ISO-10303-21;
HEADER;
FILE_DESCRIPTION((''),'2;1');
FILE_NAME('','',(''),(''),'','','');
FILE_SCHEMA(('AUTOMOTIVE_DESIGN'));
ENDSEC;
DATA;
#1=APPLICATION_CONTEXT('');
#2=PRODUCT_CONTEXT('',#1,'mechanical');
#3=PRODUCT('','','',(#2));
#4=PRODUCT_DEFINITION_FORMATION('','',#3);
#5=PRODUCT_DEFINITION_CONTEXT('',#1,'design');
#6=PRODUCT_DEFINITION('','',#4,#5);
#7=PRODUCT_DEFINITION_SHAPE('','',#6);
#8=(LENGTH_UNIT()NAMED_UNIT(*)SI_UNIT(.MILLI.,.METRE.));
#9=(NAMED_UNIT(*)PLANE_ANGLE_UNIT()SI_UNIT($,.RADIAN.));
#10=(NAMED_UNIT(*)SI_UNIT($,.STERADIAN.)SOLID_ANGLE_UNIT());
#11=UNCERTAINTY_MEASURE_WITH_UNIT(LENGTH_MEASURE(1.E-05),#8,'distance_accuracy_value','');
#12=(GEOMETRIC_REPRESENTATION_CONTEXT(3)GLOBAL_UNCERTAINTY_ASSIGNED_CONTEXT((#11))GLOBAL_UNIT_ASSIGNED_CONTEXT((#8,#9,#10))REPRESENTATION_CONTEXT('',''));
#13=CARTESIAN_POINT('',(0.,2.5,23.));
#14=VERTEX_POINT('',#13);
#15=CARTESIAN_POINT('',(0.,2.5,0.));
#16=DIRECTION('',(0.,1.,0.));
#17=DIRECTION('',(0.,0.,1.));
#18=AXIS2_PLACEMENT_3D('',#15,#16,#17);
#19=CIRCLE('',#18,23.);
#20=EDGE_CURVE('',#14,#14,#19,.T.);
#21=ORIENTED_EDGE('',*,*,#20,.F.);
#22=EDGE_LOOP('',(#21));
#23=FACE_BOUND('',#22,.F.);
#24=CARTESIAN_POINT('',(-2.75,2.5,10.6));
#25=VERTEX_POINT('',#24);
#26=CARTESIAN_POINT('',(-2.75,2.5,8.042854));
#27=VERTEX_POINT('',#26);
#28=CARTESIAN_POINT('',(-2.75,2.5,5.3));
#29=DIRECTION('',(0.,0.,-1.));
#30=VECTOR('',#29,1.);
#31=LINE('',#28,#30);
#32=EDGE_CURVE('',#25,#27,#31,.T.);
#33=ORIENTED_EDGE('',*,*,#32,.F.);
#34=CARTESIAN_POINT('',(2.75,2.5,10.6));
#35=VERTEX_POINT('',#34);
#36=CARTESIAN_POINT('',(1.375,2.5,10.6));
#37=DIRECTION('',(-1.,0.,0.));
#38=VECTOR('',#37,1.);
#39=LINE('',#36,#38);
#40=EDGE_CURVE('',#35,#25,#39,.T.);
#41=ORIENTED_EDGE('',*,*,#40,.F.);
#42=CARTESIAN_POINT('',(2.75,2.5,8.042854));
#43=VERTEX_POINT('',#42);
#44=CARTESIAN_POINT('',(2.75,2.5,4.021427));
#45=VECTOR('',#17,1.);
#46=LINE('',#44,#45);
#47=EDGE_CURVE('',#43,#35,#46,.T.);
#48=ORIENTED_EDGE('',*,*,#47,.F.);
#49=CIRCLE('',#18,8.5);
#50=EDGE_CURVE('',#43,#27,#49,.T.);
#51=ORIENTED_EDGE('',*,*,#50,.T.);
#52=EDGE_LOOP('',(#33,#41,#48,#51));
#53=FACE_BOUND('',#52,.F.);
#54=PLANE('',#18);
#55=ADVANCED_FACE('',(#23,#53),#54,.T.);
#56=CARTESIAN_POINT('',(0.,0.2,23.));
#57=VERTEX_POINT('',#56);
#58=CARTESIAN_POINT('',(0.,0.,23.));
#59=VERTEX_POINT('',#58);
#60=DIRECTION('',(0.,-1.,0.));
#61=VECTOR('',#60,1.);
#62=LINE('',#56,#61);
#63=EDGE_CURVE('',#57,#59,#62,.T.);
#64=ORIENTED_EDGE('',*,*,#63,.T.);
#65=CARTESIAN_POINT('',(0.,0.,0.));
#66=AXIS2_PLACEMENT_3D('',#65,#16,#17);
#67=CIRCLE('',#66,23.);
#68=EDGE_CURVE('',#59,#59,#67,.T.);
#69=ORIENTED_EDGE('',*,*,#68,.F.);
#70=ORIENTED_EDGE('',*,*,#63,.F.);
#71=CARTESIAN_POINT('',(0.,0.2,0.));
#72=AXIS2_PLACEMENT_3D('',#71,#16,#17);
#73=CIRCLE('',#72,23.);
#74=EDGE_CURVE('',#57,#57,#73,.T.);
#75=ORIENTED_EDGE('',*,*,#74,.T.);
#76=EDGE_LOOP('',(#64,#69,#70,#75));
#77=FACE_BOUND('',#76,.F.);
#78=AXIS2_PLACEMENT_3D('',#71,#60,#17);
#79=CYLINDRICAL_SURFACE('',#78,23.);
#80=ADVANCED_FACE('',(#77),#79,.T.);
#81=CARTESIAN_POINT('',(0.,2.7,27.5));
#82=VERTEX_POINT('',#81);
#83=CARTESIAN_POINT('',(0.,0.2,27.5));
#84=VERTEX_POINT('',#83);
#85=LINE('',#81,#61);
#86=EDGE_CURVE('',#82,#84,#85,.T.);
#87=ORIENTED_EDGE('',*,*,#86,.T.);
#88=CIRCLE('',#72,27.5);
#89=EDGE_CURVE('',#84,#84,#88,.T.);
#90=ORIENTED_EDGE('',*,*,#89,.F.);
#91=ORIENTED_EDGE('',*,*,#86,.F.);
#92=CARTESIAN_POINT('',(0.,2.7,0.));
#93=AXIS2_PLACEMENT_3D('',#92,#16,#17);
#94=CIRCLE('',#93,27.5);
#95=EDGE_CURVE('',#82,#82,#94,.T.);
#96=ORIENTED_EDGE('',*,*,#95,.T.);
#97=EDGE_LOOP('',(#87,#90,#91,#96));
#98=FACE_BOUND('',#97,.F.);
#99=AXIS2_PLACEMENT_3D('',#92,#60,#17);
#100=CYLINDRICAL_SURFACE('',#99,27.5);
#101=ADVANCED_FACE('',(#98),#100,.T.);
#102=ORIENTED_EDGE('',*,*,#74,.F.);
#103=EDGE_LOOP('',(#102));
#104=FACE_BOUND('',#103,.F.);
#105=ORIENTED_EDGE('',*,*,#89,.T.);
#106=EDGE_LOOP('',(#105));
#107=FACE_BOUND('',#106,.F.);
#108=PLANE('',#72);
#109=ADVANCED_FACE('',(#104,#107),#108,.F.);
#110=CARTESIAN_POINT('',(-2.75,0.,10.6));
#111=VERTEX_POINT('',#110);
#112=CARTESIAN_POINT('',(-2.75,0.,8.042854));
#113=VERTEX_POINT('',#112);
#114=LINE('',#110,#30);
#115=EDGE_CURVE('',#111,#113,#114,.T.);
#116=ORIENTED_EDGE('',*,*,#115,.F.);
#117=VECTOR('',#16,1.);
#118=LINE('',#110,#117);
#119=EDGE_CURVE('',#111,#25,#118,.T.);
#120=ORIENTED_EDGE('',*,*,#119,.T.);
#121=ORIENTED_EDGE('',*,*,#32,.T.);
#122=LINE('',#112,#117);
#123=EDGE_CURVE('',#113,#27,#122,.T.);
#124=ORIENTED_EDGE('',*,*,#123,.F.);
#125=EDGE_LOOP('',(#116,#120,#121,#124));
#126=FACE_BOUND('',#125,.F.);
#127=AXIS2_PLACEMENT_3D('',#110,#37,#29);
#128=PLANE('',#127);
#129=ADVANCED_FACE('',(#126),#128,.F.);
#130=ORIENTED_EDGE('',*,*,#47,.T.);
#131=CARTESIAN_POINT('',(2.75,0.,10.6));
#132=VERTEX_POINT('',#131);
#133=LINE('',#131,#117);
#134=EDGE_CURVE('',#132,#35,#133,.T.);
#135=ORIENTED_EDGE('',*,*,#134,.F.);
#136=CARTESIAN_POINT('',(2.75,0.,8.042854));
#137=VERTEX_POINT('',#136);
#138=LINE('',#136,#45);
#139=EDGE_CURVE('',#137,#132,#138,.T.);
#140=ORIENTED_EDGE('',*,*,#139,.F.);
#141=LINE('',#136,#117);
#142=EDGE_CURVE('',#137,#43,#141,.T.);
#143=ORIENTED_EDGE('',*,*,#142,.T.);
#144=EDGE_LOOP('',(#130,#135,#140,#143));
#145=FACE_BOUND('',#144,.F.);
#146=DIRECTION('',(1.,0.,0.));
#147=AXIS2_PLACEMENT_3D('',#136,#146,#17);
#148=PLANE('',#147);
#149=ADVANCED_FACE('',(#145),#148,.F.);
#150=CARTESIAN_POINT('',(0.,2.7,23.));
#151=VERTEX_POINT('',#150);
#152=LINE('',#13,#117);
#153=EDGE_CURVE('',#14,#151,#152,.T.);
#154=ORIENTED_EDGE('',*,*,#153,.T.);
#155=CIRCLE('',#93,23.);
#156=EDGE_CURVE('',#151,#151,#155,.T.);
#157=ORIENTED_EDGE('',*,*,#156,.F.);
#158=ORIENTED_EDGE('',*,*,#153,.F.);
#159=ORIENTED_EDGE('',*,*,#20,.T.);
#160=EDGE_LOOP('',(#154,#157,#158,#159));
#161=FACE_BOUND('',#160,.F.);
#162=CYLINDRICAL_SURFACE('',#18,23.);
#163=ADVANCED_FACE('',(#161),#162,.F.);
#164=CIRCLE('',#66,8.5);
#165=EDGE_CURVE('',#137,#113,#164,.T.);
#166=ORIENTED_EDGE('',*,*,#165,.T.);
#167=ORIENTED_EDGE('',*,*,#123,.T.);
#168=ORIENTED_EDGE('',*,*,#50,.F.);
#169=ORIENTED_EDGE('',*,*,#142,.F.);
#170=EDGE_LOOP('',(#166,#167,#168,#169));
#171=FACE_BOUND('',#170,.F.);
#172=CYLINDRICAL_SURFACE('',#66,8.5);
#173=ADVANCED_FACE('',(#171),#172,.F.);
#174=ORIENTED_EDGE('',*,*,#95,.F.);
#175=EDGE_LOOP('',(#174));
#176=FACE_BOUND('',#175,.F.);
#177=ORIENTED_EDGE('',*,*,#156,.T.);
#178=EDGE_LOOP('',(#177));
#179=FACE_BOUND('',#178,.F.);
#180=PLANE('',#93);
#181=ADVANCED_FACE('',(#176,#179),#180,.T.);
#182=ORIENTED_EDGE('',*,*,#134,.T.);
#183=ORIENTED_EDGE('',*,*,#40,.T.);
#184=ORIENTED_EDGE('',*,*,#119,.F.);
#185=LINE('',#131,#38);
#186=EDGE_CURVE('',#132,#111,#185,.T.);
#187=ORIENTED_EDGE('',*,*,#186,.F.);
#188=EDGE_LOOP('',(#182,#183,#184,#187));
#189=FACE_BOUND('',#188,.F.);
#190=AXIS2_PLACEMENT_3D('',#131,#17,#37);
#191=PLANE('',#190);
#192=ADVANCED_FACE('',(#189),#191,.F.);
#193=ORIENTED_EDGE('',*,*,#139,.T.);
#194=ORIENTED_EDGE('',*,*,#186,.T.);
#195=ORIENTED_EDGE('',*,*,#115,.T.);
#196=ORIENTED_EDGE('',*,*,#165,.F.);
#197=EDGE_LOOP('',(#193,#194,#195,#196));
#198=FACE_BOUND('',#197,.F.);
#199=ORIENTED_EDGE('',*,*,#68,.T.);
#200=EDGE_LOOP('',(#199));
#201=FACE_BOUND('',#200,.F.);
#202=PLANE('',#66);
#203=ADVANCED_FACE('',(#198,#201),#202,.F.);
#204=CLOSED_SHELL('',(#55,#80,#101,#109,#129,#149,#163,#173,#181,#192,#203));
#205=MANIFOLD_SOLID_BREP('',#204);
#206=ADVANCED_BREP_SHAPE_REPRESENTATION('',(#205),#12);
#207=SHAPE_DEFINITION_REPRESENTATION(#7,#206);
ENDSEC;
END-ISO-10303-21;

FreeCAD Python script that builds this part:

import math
import FreeCAD as App
import Part
import Sketcher
from FreeCAD import Vector
Q = App.Units.Quantity

doc = App.newDocument("Part")
body = doc.addObject("PartDesign::Body", "Body")

# Sketch on YZ plane
sketch1 = body.newObject("Sketcher::SketchObject", "Sketch")
sketch1.AttachmentSupport = (doc.getObject("YZ_Plane"), [""])
sketch1.MapMode = "FlatFace"
sketch1.addGeometry([
    Part.LineSegment(Vector(0, 23, 0), Vector(0, 8.5, 0)),  # 0
    Part.LineSegment(Vector(0, 8.5, 0), Vector(2.5, 8.5, 0)),  # 1
    Part.LineSegment(Vector(2.5, 8.5, 0), Vector(2.5, 23, 0)),  # 2
    Part.LineSegment(Vector(2.5, 23, 0), Vector(2.7, 23, 0)),  # 3
    Part.LineSegment(Vector(2.7, 23, 0), Vector(2.7, 27.5, 0)),  # 4
    Part.LineSegment(Vector(2.7, 27.5, 0), Vector(0.2, 27.5, 0)),  # 5
    Part.LineSegment(Vector(0.2, 27.5, 0), Vector(0.2, 23, 0)),  # 6
    Part.LineSegment(Vector(0.2, 23, 0), Vector(0, 23, 0)),  # 7
], False)
sketch1.addConstraint([
    Sketcher.Constraint("Coincident", 0, 2, 1, 1),
    Sketcher.Constraint("Coincident", 1, 2, 2, 1),
    Sketcher.Constraint("Coincident", 2, 2, 3, 1),
    Sketcher.Constraint("Coincident", 3, 2, 4, 1),
    Sketcher.Constraint("Coincident", 4, 2, 5, 1),
    Sketcher.Constraint("Coincident", 5, 2, 6, 1),
    Sketcher.Constraint("Coincident", 6, 2, 7, 1),
    Sketcher.Constraint("Coincident", 7, 2, 0, 1),
    Sketcher.Constraint("Vertical", 0),
    Sketcher.Constraint("Horizontal", 1),
    Sketcher.Constraint("Vertical", 2),
    Sketcher.Constraint("Horizontal", 3),
    Sketcher.Constraint("Vertical", 4),
    Sketcher.Constraint("Horizontal", 5),
    Sketcher.Constraint("Vertical", 6),
    Sketcher.Constraint("Horizontal", 7),
    Sketcher.Constraint("PointOnObject", 0, 2, -2),
    Sketcher.Constraint("Horizontal", 3, 2, 6, 2),
    Sketcher.Constraint("Equal", 1, 5),
    Sketcher.Constraint("DistanceX", 1, 1, 1, 2, Q("2.5 mm")),
    Sketcher.Constraint("DistanceX", 3, 1, 3, 2, Q("0.2 mm")),
    Sketcher.Constraint("DistanceY", 0, 2, 0, 1, Q("14.5 mm")),
    Sketcher.Constraint("DistanceY", 4, 1, 4, 2, Q("4.5 mm")),
    Sketcher.Constraint("DistanceY", -1, 1, 2, 2, Q("23 mm")),
])
revolution = body.newObject("PartDesign::Revolution", "Revolution")
revolution.Profile = sketch1
revolution.ReferenceAxis = (sketch1, ["H_Axis"])
revolution.Angle = 360

# Sketch on XZ plane
sketch2 = body.newObject("Sketcher::SketchObject", "Sketch001")
sketch2.AttachmentSupport = (doc.getObject("XZ_Plane"), [""])
sketch2.MapMode = "FlatFace"
sketch2.addGeometry([
    Part.LineSegment(Vector(2.8, 10.6, 0), Vector(-2.8, 10.6, 0)),
    Part.LineSegment(Vector(-2.8, 10.6, 0), Vector(-2.8, 8, 0)),
    Part.ArcOfCircle(Part.Circle(Vector(0, 0, 0), Vector(0, 0, 1), 8.5), math.radians(71), math.radians(109)),
    Part.LineSegment(Vector(2.8, 8, 0), Vector(2.8, 10.6, 0)),
], False)
sketch2.addConstraint([
    Sketcher.Constraint("Coincident", 0, 2, 1, 1),
    Sketcher.Constraint("Coincident", 1, 2, 2, 2),
    Sketcher.Constraint("Coincident", 2, 1, 3, 1),
    Sketcher.Constraint("Coincident", 3, 2, 0, 1),
    Sketcher.Constraint("Horizontal", 0),
    Sketcher.Constraint("Vertical", 1),
    Sketcher.Constraint("Vertical", 3),
    Sketcher.Constraint("Coincident", 2, 3, -1, 1),
    Sketcher.Constraint("Horizontal", 1, 2, 2, 1),
    Sketcher.Constraint("Radius", 2, Q("8.500001 mm")),
    Sketcher.Constraint("DistanceX", 0, 2, 0, 1, Q("5.5 mm")),
    Sketcher.Constraint("DistanceY", -1, 1, 0, 2, Q("10.6 mm")),
])
pocket1 = body.newObject("PartDesign::Pocket", "Pocket")
pocket1.Profile = sketch2
pocket1.Type = "ThroughAll"

doc.recompute()
